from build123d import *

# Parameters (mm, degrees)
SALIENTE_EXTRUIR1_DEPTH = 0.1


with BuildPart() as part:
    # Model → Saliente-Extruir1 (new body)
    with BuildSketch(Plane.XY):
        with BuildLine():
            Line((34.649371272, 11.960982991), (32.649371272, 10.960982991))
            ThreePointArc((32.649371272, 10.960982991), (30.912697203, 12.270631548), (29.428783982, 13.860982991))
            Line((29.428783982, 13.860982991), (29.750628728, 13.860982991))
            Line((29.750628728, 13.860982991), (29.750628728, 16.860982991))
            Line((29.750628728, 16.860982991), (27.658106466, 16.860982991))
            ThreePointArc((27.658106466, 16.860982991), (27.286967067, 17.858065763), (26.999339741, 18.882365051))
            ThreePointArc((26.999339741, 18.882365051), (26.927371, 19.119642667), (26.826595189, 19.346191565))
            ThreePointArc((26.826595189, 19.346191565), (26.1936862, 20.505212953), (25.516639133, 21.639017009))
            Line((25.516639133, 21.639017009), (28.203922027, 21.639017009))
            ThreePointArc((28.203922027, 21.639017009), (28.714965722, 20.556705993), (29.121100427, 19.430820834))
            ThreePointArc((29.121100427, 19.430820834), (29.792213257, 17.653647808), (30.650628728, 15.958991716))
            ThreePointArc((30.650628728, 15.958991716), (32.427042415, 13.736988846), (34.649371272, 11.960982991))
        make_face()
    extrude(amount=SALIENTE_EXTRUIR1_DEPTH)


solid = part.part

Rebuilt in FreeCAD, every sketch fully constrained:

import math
import FreeCAD as App
import Part
import Sketcher

V = App.Vector
Q = App.Units.Quantity

doc = App.newDocument("Part")
body = doc.addObject("PartDesign::Body", "Body")

# Sketch on XY plane
sketch1 = doc.addObject("Sketcher::SketchObject", "Sketch")
body.addObject(sketch1)
sketch1.AttachmentSupport = (doc.XY_Plane, [""])
sketch1.MapMode = "FlatFace"
sketch1.addGeometry([
    Part.LineSegment(V(32.649371, 10.960983, 0), V(34.649371, 11.960983, 0)),  # 0
    Part.ArcOfCircle(Part.Circle(V(41.499908, 22.81152, 0), V(0, 0, 1), 12.832148), math.radians(-147.723028), math.radians(-122.266457)),  # 1
    Part.ArcOfCircle(Part.Circle(V(45.927436, 24.762085, 0), V(0, 0, 1), 17.631657), math.radians(-162.40006), math.radians(-150.047773)),  # 2
    Part.ArcOfCircle(Part.Circle(V(17.068833, 15.719463, 0), V(0, 0, 1), 12.610763), math.radians(17.115617), math.radians(27.995676)),  # 3
    Part.LineSegment(V(28.203922, 21.639017, 0), V(25.516639, 21.639017, 0)),  # 4
    Part.ArcOfCircle(Part.Circle(V(-3.593501, 3.48695, 0), V(0, 0, 1), 34.305944), math.radians(27.534876), math.radians(31.946224)),  # 5
    Part.ArcOfCircle(Part.Circle(V(25.053136, 18.421615, 0), V(0, 0, 1), 2), math.radians(13.319162), math.radians(27.534875)),  # 6
    Part.ArcOfCircle(Part.Circle(V(39.539566, 21.851177, 0), V(0, 0, 1), 12.886858), math.radians(-166.680838), math.radians(-157.21767)),  # 7
    Part.LineSegment(V(27.658106, 16.860983, 0), V(29.750629, 16.860983, 0)),  # 8
    Part.LineSegment(V(29.750629, 16.860983, 0), V(29.750629, 13.860983, 0)),  # 9
    Part.LineSegment(V(29.750629, 13.860983, 0), V(29.428784, 13.860983, 0)),  # 10
    Part.ArcOfCircle(Part.Circle(V(39.294027, 21.578495, 0), V(0, 0, 1), 12.525295), math.radians(-141.964171), math.radians(-122.039173)),  # 11
], False)
sketch1.addConstraint([
    Sketcher.Constraint("Coincident", 0, 2, 1, 2),
    Sketcher.Constraint("Coincident", 1, 1, 2, 2),
    Sketcher.Constraint("Coincident", 2, 1, 3, 1),
    Sketcher.Constraint("Coincident", 3, 2, 4, 1),
    Sketcher.Constraint("Coincident", 4, 2, 5, 2),
    Sketcher.Constraint("Tangent", 5, 1, 6, 2),
    Sketcher.Constraint("Tangent", 6, 1, 7, 1),
    Sketcher.Constraint("Coincident", 7, 2, 8, 1),
    Sketcher.Constraint("Coincident", 8, 2, 9, 1),
    Sketcher.Constraint("Coincident", 9, 2, 10, 1),
    Sketcher.Constraint("Coincident", 10, 2, 11, 1),
    Sketcher.Constraint("Coincident", 11, 2, 0, 1),
    Sketcher.Constraint("Horizontal", 4),
    Sketcher.Constraint("Horizontal", 8),
    Sketcher.Constraint("Vertical", 9),
    Sketcher.Constraint("Horizontal", 10),
    Sketcher.Constraint("Radius", 6, Q("2 mm")),
    Sketcher.Constraint("DistanceY", 9, 2, 9, 1, Q("3 mm")),
    Sketcher.Constraint("DistanceX", 11, 2, 0, 2, Q("2 mm")),
    Sketcher.Constraint("DistanceY", 11, 2, 0, 2, Q("1 mm")),
    Sketcher.Constraint("DistanceX", 8, 2, 1, 1, Q("0.9 mm")),
    Sketcher.Constraint("DistanceY", 0, 2, 9, 2, Q("1.9 mm")),
    Sketcher.Constraint("Radius", 7, Q("12.886858 mm")),
    Sketcher.Constraint("Radius", 1, Q("12.832148 mm")),
    Sketcher.Constraint("Radius", 2, Q("17.631657 mm")),
    Sketcher.Constraint("Radius", 3, Q("12.610763 mm")),
    Sketcher.Constraint("Radius", 5, Q("34.305944 mm")),
    Sketcher.Constraint("Radius", 11, Q("12.525295 mm")),
    Sketcher.Constraint("DistanceX", 5, 3, -1, 1, Q("3.593501 mm")),
    Sketcher.Constraint("DistanceX", -1, 1, 2, 1, Q("29.1211 mm")),
    Sketcher.Constraint("DistanceX", 6, 3, 2, 3, Q("20.874301 mm")),
    Sketcher.Constraint("DistanceX", 1, 1, 11, 3, Q("8.643398 mm")),
    Sketcher.Constraint("DistanceY", 1, 1, 5, 1, Q("3.3872 mm")),
    Sketcher.Constraint("DistanceX", 4, 2, 6, 1, Q("1.482701 mm")),
    Sketcher.Constraint("DistanceX", 4, 2, 4, 1, Q("2.687283 mm")),
    Sketcher.Constraint("DistanceX", 8, 1, 8, 2, Q("2.092522 mm")),
    Sketcher.Constraint("DistanceX", 10, 2, 10, 1, Q("0.321845 mm")),
    Sketcher.Constraint("DistanceX", -1, 1, 1, 3, Q("41.499908 mm")),
    Sketcher.Constraint("DistanceY", -1, 1, 1, 3, Q("22.81152 mm")),
    Sketcher.Constraint("DistanceY", -1, 1, 5, 3, Q("3.48695 mm")),
    Sketcher.Constraint("DistanceX", -1, 1, 0, 2, Q("34.649371 mm")),
])
pad1 = doc.addObject("PartDesign::Pad", "Pad")
body.addObject(pad1)
pad1.Profile = sketch1
pad1.Length = 0.1

doc.recompute()
